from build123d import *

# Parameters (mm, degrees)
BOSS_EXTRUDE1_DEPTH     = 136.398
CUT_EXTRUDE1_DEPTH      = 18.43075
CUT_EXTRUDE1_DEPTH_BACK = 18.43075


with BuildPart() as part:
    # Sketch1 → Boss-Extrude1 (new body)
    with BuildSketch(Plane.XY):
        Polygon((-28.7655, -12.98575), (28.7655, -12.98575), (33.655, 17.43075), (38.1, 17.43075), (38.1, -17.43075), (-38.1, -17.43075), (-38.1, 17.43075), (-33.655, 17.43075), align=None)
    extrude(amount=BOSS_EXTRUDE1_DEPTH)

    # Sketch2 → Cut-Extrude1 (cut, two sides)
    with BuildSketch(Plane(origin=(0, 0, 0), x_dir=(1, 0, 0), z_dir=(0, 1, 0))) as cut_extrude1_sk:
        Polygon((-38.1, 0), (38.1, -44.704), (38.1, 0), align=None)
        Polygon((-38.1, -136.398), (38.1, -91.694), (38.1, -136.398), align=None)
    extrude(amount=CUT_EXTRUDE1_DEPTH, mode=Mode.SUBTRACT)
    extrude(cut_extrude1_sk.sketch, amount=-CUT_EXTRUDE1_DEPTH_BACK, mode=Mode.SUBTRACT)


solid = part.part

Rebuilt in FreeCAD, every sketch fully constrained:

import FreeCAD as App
import Part
import Sketcher
from FreeCAD import Vector
Q = App.Units.Quantity

doc = App.newDocument("Part")
body = doc.addObject("PartDesign::Body", "Body")

# Sketch on XY plane
sketch1 = doc.addObject("Sketcher::SketchObject", "Sketch")
body.addObject(sketch1)
sketch1.AttachmentSupport = (doc.XY_Plane, [""])
sketch1.MapMode = "FlatFace"
sketch1.addGeometry([
    Part.LineSegment(Vector(28.8, -13, 0), Vector(-28.8, -13, 0)),  # 0
    Part.LineSegment(Vector(-28.8, -13, 0), Vector(-33.7, 17.4, 0)),  # 1
    Part.LineSegment(Vector(-33.7, 17.4, 0), Vector(-38.1, 17.4, 0)),  # 2
    Part.LineSegment(Vector(-38.1, 17.4, 0), Vector(-38.1, -17.4, 0)),  # 3
    Part.LineSegment(Vector(-38.1, -17.4, 0), Vector(38.1, -17.4, 0)),  # 4
    Part.LineSegment(Vector(38.1, -17.4, 0), Vector(38.1, 17.4, 0)),  # 5
    Part.LineSegment(Vector(38.1, 17.4, 0), Vector(33.7, 17.4, 0)),  # 6
    Part.LineSegment(Vector(33.7, 17.4, 0), Vector(28.8, -13, 0)),  # 7
], False)
sketch1.addConstraint([
    Sketcher.Constraint("Coincident", 0, 2, 1, 1),
    Sketcher.Constraint("Coincident", 1, 2, 2, 1),
    Sketcher.Constraint("Coincident", 2, 2, 3, 1),
    Sketcher.Constraint("Coincident", 3, 2, 4, 1),
    Sketcher.Constraint("Coincident", 4, 2, 5, 1),
    Sketcher.Constraint("Coincident", 5, 2, 6, 1),
    Sketcher.Constraint("Coincident", 6, 2, 7, 1),
    Sketcher.Constraint("Coincident", 7, 2, 0, 1),
    Sketcher.Constraint("Horizontal", 0),
    Sketcher.Constraint("Horizontal", 2),
    Sketcher.Constraint("Vertical", 3),
    Sketcher.Constraint("Horizontal", 4),
    Sketcher.Constraint("Vertical", 5),
    Sketcher.Constraint("Horizontal", 6),
    Sketcher.Constraint("Symmetric", 2, 2, 4, 2, -1, 1),
    Sketcher.Constraint("Symmetric", 1, 2, 6, 2, -2),
    Sketcher.Constraint("Equal", 1, 7),
    Sketcher.Constraint("DistanceX", 4, 1, 4, 2, Q("3 in")),
    Sketcher.Constraint("DistanceX", 0, 2, 0, 1, Q("2.265 in")),
    Sketcher.Constraint("DistanceX", 2, 2, 2, 1, Q("0.175 in")),
    Sketcher.Constraint("DistanceY", 3, 2, 3, 1, Q("1.3725 in")),
    Sketcher.Constraint("DistanceY", 3, 2, 0, 2, Q("0.175 in")),
])
pad1 = doc.addObject("PartDesign::Pad", "Pad")
body.addObject(pad1)
pad1.Profile = sketch1
pad1.Length = Q("5.37 in")

# Sketch on XZ plane
sketch2 = doc.addObject("Sketcher::SketchObject", "Sketch001")
body.addObject(sketch2)
sketch2.AttachmentSupport = (doc.XZ_Plane, [""])
sketch2.MapMode = "FlatFace"
sketch2.addGeometry([
    Part.LineSegment(Vector(-38, 0, 0), Vector(38, 45, 0)),  # 0
    Part.LineSegment(Vector(38, 45, 0), Vector(38, 0, 0)),  # 1
    Part.LineSegment(Vector(38, 0, 0), Vector(-38, 0, 0)),  # 2
    Part.LineSegment(Vector(38, 92, 0), Vector(-38, 136, 0)),  # 3
    Part.LineSegment(Vector(-38, 136, 0), Vector(38, 136, 0)),  # 4
    Part.LineSegment(Vector(38, 136, 0), Vector(38, 92, 0)),  # 5
], False)
sketch2.addConstraint([
    Sketcher.Constraint("Coincident", 0, 2, 1, 1),
    Sketcher.Constraint("Coincident", 1, 2, 2, 1),
    Sketcher.Constraint("Coincident", 2, 2, 0, 1),
    Sketcher.Constraint("Coincident", 3, 2, 4, 1),
    Sketcher.Constraint("Coincident", 4, 2, 5, 1),
    Sketcher.Constraint("Coincident", 5, 2, 3, 1),
    Sketcher.Constraint("Vertical", 1),
    Sketcher.Constraint("Horizontal", 2),
    Sketcher.Constraint("Horizontal", 4),
    Sketcher.Constraint("Vertical", 5),
    Sketcher.Constraint("Symmetric", 1, 2, 2, 2, -1, 1),
    Sketcher.Constraint("Vertical", 2, 2, 3, 2),
    Sketcher.Constraint("Vertical", 1, 2, 4, 2),
    Sketcher.Constraint("Equal", 1, 5),
    Sketcher.Constraint("DistanceX", 2, 2, 2, 1, Q("3 in")),
    Sketcher.Constraint("DistanceY", 1, 2, 1, 1, Q("1.76 in")),
    Sketcher.Constraint("DistanceY", -1, 1, 3, 2, Q("5.37 in")),
])
pocket1 = doc.addObject("PartDesign::Pocket", "Pocket")
body.addObject(pocket1)
pocket1.Profile = sketch2
pocket1.Type = "ThroughAll"
pocket1.Midplane = True

doc.recompute()
